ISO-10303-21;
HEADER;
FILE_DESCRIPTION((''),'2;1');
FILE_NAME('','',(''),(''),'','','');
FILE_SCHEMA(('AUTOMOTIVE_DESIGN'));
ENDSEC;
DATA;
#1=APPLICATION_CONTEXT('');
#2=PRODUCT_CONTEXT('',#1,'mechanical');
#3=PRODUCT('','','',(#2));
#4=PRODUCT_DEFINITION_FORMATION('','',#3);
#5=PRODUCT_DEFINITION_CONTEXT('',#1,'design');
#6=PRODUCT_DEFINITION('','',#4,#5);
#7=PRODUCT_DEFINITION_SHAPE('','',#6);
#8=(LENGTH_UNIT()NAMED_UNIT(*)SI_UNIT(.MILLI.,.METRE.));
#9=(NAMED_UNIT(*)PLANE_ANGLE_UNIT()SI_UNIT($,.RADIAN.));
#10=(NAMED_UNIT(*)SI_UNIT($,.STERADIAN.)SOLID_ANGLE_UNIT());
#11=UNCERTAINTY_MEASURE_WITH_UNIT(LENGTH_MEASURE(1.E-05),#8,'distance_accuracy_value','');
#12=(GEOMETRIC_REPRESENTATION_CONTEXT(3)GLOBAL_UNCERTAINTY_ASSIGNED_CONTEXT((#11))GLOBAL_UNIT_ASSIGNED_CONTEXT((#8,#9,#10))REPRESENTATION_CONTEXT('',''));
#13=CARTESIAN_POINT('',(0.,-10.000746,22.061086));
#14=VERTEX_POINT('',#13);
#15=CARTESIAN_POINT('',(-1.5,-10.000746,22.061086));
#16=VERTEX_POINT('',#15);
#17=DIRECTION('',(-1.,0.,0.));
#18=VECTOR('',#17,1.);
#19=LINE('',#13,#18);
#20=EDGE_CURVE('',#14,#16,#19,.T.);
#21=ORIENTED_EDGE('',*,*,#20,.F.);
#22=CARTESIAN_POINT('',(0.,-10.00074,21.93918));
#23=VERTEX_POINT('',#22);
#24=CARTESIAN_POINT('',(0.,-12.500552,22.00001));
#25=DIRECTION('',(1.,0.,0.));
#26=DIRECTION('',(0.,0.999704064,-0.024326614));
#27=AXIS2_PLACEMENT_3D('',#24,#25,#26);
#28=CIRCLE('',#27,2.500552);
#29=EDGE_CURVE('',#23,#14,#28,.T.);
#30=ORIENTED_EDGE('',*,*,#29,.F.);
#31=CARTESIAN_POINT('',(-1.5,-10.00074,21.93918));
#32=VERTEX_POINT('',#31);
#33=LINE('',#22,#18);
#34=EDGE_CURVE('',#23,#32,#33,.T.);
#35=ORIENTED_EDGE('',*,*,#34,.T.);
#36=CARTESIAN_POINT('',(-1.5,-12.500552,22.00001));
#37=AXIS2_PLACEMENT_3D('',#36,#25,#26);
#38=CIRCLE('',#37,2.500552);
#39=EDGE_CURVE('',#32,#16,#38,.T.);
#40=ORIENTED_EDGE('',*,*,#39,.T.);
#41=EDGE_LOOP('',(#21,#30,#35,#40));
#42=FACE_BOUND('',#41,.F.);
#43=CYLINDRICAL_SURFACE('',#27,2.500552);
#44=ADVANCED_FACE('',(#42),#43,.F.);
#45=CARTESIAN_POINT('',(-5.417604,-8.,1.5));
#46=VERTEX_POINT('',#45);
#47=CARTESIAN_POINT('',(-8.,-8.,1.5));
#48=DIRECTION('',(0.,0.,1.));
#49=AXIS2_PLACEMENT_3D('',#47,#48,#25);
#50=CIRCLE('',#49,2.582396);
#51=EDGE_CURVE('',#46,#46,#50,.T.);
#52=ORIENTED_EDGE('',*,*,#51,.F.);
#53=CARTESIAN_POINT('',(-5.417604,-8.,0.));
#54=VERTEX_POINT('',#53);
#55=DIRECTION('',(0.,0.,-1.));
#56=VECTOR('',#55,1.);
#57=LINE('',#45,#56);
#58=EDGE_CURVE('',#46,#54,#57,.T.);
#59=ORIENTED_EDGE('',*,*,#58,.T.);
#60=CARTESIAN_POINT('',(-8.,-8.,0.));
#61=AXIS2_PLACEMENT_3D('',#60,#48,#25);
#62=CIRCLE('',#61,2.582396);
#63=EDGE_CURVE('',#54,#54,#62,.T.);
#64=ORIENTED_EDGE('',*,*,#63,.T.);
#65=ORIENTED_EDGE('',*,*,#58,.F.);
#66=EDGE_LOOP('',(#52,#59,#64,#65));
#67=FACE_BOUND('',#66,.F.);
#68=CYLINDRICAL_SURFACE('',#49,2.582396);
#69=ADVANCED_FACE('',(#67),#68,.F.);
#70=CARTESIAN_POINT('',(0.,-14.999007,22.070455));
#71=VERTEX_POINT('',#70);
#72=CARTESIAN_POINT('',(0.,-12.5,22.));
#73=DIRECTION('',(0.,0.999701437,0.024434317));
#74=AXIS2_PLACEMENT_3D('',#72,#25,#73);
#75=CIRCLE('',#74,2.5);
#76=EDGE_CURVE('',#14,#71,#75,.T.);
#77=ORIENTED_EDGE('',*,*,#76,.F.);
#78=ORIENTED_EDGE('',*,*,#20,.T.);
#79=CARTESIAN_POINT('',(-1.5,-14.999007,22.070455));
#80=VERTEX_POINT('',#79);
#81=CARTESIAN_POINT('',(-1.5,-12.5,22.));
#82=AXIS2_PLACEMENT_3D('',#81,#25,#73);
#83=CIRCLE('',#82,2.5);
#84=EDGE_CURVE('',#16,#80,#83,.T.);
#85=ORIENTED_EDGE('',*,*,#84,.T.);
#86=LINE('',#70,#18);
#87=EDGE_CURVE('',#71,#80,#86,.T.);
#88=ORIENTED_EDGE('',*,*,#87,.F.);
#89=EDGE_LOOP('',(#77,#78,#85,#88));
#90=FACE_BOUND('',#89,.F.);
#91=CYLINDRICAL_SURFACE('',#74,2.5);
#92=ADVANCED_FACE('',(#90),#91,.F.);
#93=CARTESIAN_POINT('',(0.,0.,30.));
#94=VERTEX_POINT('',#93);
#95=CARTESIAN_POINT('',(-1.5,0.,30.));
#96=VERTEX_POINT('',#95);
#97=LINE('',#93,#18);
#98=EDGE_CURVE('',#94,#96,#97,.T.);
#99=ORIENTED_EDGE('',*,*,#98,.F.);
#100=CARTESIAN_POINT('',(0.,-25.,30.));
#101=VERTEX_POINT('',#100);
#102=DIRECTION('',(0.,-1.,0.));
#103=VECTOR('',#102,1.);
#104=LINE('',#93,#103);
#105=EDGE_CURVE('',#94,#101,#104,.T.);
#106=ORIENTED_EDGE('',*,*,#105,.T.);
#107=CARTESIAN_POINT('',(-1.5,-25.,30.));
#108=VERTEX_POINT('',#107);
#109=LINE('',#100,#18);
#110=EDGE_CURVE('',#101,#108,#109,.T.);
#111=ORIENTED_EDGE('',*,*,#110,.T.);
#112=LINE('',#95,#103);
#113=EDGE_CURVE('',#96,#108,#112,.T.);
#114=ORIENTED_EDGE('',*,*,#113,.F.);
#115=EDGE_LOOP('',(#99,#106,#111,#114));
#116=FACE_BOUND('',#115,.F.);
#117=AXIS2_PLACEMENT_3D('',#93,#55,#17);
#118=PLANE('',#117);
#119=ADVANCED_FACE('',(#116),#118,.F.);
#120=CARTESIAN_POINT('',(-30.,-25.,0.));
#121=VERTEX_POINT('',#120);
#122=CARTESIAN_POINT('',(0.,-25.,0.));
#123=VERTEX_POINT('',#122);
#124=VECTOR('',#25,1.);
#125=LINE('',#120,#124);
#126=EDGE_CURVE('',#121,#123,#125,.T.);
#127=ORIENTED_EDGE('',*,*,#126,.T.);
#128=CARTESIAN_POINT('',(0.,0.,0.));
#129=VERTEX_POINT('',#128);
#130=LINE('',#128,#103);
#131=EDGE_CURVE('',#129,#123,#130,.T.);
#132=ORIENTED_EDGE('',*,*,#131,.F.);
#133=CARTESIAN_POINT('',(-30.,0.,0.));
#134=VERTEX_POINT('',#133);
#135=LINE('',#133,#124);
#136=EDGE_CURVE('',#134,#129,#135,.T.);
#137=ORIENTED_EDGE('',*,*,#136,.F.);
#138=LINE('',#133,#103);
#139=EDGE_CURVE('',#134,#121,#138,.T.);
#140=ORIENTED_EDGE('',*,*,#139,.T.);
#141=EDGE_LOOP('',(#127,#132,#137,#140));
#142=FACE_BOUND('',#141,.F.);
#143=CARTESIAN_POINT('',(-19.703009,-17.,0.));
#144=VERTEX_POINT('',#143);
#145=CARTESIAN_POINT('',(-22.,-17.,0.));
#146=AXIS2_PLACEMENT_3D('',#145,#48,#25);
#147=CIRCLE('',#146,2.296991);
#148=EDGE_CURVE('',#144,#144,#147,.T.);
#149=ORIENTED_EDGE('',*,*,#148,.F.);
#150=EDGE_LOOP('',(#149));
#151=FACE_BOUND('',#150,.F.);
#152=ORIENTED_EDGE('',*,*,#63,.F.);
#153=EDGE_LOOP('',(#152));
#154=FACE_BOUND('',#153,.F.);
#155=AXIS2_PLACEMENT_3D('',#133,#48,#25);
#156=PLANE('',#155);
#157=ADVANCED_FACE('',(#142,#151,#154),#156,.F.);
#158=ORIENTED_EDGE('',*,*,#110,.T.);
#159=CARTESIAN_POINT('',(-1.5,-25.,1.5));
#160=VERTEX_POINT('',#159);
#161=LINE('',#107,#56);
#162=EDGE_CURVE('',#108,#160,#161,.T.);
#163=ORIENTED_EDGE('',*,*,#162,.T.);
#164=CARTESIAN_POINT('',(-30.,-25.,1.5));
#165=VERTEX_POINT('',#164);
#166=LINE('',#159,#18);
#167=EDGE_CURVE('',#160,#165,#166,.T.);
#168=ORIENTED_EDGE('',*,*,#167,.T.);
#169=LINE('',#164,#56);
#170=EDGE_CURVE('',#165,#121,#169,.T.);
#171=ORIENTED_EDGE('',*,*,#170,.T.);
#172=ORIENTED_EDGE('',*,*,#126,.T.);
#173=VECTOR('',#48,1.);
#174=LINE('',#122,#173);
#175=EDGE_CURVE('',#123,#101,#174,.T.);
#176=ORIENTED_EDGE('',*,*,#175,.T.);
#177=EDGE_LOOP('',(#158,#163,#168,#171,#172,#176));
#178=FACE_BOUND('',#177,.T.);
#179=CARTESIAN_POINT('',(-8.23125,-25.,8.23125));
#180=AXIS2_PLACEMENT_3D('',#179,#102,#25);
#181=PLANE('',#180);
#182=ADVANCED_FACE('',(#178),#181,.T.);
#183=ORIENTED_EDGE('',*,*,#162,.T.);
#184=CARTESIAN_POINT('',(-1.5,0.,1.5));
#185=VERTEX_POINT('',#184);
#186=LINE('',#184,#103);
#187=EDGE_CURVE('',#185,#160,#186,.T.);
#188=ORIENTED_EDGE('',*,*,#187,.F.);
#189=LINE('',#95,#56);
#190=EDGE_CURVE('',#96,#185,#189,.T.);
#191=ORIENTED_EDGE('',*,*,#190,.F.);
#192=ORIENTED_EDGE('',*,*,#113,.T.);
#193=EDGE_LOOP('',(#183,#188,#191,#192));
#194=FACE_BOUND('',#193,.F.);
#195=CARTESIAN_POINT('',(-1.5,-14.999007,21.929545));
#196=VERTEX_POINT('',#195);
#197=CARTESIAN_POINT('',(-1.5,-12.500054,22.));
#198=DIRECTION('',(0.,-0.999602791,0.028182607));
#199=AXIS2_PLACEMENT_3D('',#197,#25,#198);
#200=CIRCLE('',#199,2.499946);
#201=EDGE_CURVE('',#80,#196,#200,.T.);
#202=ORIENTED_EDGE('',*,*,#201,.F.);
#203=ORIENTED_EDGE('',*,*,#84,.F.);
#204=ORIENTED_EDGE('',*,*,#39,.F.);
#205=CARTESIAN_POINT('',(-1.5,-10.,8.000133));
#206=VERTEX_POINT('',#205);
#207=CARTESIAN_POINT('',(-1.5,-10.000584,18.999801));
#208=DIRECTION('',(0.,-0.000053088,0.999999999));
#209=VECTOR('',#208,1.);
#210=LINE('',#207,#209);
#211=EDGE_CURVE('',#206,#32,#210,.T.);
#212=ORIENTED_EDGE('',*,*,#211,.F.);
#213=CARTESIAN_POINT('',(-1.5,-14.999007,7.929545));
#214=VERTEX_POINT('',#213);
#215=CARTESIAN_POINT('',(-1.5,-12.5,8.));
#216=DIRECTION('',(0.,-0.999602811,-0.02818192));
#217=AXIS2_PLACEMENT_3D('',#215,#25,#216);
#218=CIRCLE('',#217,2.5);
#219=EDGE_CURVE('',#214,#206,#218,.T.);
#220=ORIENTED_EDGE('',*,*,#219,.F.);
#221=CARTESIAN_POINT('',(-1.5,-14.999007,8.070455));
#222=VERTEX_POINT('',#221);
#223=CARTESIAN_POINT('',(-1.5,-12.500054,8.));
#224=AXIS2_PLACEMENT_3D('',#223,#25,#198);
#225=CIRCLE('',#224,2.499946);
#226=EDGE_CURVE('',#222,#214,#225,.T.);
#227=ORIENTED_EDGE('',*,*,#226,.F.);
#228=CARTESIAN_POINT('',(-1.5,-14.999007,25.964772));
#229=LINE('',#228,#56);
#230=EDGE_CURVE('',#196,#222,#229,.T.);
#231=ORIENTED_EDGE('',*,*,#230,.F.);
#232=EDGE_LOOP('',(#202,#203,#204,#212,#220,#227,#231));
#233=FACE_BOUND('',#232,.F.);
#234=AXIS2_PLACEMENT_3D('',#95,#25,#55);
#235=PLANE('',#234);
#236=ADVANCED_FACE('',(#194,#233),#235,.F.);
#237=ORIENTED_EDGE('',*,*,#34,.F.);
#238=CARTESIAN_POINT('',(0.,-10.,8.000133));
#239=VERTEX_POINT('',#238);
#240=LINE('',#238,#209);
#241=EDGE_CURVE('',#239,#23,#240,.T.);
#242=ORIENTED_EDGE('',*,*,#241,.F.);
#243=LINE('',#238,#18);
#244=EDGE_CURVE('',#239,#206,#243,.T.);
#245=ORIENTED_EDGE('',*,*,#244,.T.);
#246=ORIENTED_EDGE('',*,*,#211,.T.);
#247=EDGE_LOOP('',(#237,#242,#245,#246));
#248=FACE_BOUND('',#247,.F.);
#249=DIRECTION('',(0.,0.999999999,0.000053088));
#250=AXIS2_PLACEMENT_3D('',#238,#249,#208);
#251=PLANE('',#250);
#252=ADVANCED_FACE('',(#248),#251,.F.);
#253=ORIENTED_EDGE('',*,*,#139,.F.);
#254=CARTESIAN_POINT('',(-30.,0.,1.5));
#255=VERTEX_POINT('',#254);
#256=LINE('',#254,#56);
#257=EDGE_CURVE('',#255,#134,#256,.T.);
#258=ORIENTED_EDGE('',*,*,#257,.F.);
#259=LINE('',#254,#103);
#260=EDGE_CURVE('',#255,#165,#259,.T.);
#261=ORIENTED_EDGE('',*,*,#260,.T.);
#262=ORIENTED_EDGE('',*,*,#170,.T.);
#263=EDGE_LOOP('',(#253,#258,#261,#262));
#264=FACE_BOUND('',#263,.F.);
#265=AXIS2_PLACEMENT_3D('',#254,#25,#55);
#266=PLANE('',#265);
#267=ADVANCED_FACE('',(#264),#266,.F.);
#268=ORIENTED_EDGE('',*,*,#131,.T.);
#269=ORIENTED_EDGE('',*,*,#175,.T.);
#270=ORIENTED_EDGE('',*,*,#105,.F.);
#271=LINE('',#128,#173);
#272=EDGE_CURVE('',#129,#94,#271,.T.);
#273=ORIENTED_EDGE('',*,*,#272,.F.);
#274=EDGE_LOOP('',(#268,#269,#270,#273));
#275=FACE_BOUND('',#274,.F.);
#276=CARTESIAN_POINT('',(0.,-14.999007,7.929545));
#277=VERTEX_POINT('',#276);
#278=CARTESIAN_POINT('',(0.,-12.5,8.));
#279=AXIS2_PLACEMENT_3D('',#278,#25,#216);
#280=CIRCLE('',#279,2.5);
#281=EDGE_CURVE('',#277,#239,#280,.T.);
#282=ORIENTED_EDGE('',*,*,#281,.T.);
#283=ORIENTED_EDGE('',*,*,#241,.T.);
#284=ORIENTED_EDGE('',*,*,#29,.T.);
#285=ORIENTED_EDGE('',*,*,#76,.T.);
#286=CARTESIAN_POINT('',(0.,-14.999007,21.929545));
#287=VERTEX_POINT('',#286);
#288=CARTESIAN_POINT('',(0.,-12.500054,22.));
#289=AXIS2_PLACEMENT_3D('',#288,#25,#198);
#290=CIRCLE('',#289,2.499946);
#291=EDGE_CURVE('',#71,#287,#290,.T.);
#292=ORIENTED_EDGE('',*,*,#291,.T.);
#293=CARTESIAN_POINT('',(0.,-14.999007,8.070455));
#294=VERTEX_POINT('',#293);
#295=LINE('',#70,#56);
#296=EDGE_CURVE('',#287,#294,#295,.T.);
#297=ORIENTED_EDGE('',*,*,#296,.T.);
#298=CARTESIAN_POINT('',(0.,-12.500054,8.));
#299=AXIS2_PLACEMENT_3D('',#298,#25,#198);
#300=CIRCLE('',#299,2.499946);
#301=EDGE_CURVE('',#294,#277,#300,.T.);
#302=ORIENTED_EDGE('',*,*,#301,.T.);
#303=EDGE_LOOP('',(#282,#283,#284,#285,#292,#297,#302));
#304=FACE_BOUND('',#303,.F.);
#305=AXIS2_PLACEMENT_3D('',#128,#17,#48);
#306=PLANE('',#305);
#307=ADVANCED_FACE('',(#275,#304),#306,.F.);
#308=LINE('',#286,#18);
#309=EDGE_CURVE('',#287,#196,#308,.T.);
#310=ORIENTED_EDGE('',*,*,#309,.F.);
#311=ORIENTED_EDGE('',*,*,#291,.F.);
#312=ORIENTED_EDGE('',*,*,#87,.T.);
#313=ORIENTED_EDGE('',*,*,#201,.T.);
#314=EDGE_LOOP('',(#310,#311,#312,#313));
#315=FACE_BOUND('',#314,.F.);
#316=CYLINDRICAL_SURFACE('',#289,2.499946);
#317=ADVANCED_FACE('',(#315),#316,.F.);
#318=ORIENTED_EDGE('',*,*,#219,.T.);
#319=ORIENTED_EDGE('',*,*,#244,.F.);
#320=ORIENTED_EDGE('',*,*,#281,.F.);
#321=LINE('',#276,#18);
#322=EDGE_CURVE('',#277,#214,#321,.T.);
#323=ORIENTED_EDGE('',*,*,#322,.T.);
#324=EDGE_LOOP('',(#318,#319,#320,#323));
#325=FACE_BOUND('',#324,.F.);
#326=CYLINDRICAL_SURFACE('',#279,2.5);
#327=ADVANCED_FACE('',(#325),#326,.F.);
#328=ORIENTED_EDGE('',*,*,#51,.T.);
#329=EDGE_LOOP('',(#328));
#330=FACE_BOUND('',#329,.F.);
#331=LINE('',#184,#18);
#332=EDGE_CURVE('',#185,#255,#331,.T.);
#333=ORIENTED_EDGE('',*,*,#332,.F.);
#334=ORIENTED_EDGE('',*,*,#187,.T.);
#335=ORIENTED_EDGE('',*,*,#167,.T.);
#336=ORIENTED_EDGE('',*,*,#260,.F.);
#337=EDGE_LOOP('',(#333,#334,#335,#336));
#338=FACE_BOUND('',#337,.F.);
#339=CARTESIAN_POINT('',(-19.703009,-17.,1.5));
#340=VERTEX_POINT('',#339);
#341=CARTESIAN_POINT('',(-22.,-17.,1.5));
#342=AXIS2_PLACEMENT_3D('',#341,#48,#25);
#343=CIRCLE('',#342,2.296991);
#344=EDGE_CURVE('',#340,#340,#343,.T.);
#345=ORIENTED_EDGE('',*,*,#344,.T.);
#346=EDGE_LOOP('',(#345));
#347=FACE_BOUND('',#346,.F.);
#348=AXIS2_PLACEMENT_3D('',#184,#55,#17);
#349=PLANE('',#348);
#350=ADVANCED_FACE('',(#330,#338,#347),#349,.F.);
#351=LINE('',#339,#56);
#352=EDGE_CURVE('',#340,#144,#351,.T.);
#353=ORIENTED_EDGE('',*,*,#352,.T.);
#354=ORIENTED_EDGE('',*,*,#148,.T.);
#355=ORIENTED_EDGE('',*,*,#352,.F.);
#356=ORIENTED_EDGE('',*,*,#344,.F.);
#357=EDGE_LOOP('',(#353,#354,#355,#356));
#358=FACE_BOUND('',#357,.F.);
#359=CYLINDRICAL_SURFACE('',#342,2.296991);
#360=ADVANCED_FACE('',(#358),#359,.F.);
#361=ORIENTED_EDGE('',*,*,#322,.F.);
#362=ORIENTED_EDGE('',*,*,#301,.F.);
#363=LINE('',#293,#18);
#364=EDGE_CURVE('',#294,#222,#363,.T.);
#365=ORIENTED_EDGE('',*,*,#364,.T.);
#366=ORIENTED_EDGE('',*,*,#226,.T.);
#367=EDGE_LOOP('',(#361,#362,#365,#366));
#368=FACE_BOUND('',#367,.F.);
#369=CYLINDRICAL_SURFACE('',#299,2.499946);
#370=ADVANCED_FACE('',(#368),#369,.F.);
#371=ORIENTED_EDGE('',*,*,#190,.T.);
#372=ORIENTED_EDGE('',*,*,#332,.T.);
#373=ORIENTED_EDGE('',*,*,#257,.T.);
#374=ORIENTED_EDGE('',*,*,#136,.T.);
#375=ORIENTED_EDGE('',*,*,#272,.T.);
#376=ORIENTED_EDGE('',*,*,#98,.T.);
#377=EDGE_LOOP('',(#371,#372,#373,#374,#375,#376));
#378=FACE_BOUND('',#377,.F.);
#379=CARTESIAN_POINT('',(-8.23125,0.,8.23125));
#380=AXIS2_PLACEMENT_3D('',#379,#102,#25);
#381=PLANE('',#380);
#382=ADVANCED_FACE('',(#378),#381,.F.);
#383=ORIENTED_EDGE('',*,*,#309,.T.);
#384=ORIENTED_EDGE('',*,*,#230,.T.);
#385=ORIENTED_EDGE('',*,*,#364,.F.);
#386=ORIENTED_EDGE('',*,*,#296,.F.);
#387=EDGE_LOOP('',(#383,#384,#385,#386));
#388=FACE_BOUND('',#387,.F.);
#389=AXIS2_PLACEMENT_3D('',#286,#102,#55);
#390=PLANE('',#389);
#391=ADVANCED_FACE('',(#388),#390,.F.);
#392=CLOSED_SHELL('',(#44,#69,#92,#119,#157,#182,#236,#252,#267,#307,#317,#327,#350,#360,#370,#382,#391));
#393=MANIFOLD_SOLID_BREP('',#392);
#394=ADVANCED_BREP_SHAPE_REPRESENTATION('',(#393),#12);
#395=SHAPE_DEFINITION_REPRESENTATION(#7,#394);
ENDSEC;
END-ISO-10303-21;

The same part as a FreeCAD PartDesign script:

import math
import FreeCAD as App
import Part
import Sketcher
from FreeCAD import Vector
Q = App.Units.Quantity


def add_polygon(sketch, points):
    """Adds a closed chain of lines whose ends are joined by coincident constraints."""
    first, n = sketch.GeometryCount, len(points)
    for a, b in zip(points, points[1:] + points[:1]):
        sketch.addGeometry(Part.LineSegment(App.Vector(*a, 0), App.Vector(*b, 0)), False)
    for i in range(n):
        sketch.addConstraint(Sketcher.Constraint("Coincident", first + i, 2, first + (i + 1) % n, 1))

doc = App.newDocument("Part")
body = doc.addObject("PartDesign::Body", "Body")

# Sketch on XZ plane
sketch1 = body.newObject("Sketcher::SketchObject", "Sketch")
sketch1.AttachmentSupport = (doc.getObject("XZ_Plane"), [""])
sketch1.MapMode = "FlatFace"
add_polygon(sketch1, [(0, 0), (0, 30), (-1.5, 30), (-1.5, 1.5), (-30, 1.5), (-30, 0)])  # lines 0-5
sketch1.addConstraint([
    Sketcher.Constraint("Vertical", 0),
    Sketcher.Constraint("Horizontal", 1),
    Sketcher.Constraint("Vertical", 2),
    Sketcher.Constraint("Horizontal", 3),
    Sketcher.Constraint("Vertical", 4),
    Sketcher.Constraint("Horizontal", 5),
    Sketcher.Constraint("Coincident", 5, 2, -1, 1),
    Sketcher.Constraint("Equal", 5, 0),
    Sketcher.Constraint("Equal", 3, 2),
    Sketcher.Constraint("DistanceX", 5, 1, 5, 2, Q("30 mm")),
    Sketcher.Constraint("DistanceX", 1, 2, 1, 1, Q("1.5 mm")),
])
pad1 = body.newObject("PartDesign::Pad", "Pad")
pad1.Profile = sketch1
pad1.Length = 25

# Sketch on XY plane
sketch2 = body.newObject("Sketcher::SketchObject", "Sketch001")
sketch2.AttachmentSupport = (doc.getObject("XY_Plane"), [""])
sketch2.MapMode = "FlatFace"
sketch2.AttachmentOffset = App.Placement(Vector(0, 0, 1.5), App.Rotation())
sketch2.addGeometry([
    Part.Circle(Vector(-22, -17, 0), Vector(0, 0, 1), 2.3),
    Part.Circle(Vector(-8, -8, 0), Vector(0, 0, 1), 2.6),
], False)
sketch2.addConstraint([
    Sketcher.Constraint("DistanceX", 0, 3, -1, 1, Q("22 mm")),
    Sketcher.Constraint("DistanceY", 0, 3, -1, 1, Q("17 mm")),
    Sketcher.Constraint("DistanceX", 1, 3, -1, 1, Q("8 mm")),
    Sketcher.Constraint("DistanceY", 1, 3, -1, 1, Q("8 mm")),
    Sketcher.Constraint("Diameter", 0, Q("4.593982 mm")),
    Sketcher.Constraint("Diameter", 1, Q("5.164792 mm")),
])
pocket1 = body.newObject("PartDesign::Pocket", "Pocket")
pocket1.Profile = sketch2
pocket1.Length = 25

# Sketch on YZ plane
sketch3 = body.newObject("Sketcher::SketchObject", "Sketch002")
sketch3.AttachmentSupport = (doc.getObject("YZ_Plane"), [""])
sketch3.MapMode = "FlatFace"
sketch3.addGeometry([
    Part.ArcOfCircle(Part.Circle(Vector(-12.500552, 22.00001, 0), Vector(0, 0, 1), 2.500552), math.radians(-1.39395), math.radians(1.39959)),  # 0
    Part.ArcOfCircle(Part.Circle(Vector(-12.5, 22, 0), Vector(0, 0, 1), 2.5), math.radians(1.400123), math.radians(178.385081)),  # 1
    Part.ArcOfCircle(Part.Circle(Vector(-12.500054, 22, 0), Vector(0, 0, 1), 2.499946), math.radians(178.385042), math.radians(181.614958)),  # 2
    Part.LineSegment(Vector(-14.999007, 21.929545, 0), Vector(-14.999007, 8.070455, 0)),  # 3
    Part.ArcOfCircle(Part.Circle(Vector(-12.500054, 8, 0), Vector(0, 0, 1), 2.499946), math.radians(178.385042), math.radians(181.614958)),  # 4
    Part.ArcOfCircle(Part.Circle(Vector(-12.5, 8, 0), Vector(0, 0, 1), 2.5), math.radians(-178.385081), math.radians(0.003053)),  # 5
    Part.LineSegment(Vector(-10, 8.000133, 0), Vector(-10.00074, 21.93918, 0)),  # 6
], False)
sketch3.addConstraint([
    Sketcher.Constraint("Coincident", 0, 2, 1, 1),
    Sketcher.Constraint("Coincident", 1, 2, 2, 1),
    Sketcher.Constraint("Coincident", 2, 2, 3, 1),
    Sketcher.Constraint("Coincident", 3, 2, 4, 1),
    Sketcher.Constraint("Coincident", 4, 2, 5, 1),
    Sketcher.Constraint("Coincident", 5, 2, 6, 1),
    Sketcher.Constraint("Coincident", 6, 2, 0, 1),
    Sketcher.Constraint("Vertical", 3),
    Sketcher.Constraint("Radius", 1, Q("2.5 mm")),
    Sketcher.Constraint("Radius", 5, Q("2.5 mm")),
    Sketcher.Constraint("DistanceY", -1, 1, 1, 3, Q("22 mm")),
    Sketcher.Constraint("DistanceY", -1, 1, 2, 3, Q("22 mm")),
    Sketcher.Constraint("DistanceY", -1, 1, 4, 3, Q("8 mm")),
    Sketcher.Constraint("DistanceY", -1, 1, 5, 3, Q("8 mm")),
    Sketcher.Constraint("DistanceX", 5, 2, -1, 1, Q("10 mm")),
    Sketcher.Constraint("DistanceY", 3, 2, 1, 2, Q("14 mm")),
    Sketcher.Constraint("DistanceY", 4, 2, 2, 2, Q("14 mm")),
    Sketcher.Constraint("DistanceX", 1, 3, -1, 1, Q("12.5 mm")),
    Sketcher.Constraint("Radius", 0, Q("2.500552 mm")),
    Sketcher.Constraint("Radius", 2, Q("2.499946 mm")),
    Sketcher.Constraint("Radius", 4, Q("2.499946 mm")),
    Sketcher.Constraint("DistanceY", 3, 2, 3, 1, Q("13.85909 mm")),
    Sketcher.Constraint("DistanceX", 0, 3, 2, 3, Q("0.000498 mm")),
    Sketcher.Constraint("DistanceX", 6, 2, -1, 1, Q("10.00074 mm")),
    Sketcher.Constraint("DistanceX", 1, 2, 0, 2, Q("4.998261 mm")),
    Sketcher.Constraint("Distance", 6, Q("13.939047 mm")),
])
pocket2 = body.newObject("PartDesign::Pocket", "Pocket001")
pocket2.Profile = sketch3
pocket2.Length = 25

doc.recompute()
